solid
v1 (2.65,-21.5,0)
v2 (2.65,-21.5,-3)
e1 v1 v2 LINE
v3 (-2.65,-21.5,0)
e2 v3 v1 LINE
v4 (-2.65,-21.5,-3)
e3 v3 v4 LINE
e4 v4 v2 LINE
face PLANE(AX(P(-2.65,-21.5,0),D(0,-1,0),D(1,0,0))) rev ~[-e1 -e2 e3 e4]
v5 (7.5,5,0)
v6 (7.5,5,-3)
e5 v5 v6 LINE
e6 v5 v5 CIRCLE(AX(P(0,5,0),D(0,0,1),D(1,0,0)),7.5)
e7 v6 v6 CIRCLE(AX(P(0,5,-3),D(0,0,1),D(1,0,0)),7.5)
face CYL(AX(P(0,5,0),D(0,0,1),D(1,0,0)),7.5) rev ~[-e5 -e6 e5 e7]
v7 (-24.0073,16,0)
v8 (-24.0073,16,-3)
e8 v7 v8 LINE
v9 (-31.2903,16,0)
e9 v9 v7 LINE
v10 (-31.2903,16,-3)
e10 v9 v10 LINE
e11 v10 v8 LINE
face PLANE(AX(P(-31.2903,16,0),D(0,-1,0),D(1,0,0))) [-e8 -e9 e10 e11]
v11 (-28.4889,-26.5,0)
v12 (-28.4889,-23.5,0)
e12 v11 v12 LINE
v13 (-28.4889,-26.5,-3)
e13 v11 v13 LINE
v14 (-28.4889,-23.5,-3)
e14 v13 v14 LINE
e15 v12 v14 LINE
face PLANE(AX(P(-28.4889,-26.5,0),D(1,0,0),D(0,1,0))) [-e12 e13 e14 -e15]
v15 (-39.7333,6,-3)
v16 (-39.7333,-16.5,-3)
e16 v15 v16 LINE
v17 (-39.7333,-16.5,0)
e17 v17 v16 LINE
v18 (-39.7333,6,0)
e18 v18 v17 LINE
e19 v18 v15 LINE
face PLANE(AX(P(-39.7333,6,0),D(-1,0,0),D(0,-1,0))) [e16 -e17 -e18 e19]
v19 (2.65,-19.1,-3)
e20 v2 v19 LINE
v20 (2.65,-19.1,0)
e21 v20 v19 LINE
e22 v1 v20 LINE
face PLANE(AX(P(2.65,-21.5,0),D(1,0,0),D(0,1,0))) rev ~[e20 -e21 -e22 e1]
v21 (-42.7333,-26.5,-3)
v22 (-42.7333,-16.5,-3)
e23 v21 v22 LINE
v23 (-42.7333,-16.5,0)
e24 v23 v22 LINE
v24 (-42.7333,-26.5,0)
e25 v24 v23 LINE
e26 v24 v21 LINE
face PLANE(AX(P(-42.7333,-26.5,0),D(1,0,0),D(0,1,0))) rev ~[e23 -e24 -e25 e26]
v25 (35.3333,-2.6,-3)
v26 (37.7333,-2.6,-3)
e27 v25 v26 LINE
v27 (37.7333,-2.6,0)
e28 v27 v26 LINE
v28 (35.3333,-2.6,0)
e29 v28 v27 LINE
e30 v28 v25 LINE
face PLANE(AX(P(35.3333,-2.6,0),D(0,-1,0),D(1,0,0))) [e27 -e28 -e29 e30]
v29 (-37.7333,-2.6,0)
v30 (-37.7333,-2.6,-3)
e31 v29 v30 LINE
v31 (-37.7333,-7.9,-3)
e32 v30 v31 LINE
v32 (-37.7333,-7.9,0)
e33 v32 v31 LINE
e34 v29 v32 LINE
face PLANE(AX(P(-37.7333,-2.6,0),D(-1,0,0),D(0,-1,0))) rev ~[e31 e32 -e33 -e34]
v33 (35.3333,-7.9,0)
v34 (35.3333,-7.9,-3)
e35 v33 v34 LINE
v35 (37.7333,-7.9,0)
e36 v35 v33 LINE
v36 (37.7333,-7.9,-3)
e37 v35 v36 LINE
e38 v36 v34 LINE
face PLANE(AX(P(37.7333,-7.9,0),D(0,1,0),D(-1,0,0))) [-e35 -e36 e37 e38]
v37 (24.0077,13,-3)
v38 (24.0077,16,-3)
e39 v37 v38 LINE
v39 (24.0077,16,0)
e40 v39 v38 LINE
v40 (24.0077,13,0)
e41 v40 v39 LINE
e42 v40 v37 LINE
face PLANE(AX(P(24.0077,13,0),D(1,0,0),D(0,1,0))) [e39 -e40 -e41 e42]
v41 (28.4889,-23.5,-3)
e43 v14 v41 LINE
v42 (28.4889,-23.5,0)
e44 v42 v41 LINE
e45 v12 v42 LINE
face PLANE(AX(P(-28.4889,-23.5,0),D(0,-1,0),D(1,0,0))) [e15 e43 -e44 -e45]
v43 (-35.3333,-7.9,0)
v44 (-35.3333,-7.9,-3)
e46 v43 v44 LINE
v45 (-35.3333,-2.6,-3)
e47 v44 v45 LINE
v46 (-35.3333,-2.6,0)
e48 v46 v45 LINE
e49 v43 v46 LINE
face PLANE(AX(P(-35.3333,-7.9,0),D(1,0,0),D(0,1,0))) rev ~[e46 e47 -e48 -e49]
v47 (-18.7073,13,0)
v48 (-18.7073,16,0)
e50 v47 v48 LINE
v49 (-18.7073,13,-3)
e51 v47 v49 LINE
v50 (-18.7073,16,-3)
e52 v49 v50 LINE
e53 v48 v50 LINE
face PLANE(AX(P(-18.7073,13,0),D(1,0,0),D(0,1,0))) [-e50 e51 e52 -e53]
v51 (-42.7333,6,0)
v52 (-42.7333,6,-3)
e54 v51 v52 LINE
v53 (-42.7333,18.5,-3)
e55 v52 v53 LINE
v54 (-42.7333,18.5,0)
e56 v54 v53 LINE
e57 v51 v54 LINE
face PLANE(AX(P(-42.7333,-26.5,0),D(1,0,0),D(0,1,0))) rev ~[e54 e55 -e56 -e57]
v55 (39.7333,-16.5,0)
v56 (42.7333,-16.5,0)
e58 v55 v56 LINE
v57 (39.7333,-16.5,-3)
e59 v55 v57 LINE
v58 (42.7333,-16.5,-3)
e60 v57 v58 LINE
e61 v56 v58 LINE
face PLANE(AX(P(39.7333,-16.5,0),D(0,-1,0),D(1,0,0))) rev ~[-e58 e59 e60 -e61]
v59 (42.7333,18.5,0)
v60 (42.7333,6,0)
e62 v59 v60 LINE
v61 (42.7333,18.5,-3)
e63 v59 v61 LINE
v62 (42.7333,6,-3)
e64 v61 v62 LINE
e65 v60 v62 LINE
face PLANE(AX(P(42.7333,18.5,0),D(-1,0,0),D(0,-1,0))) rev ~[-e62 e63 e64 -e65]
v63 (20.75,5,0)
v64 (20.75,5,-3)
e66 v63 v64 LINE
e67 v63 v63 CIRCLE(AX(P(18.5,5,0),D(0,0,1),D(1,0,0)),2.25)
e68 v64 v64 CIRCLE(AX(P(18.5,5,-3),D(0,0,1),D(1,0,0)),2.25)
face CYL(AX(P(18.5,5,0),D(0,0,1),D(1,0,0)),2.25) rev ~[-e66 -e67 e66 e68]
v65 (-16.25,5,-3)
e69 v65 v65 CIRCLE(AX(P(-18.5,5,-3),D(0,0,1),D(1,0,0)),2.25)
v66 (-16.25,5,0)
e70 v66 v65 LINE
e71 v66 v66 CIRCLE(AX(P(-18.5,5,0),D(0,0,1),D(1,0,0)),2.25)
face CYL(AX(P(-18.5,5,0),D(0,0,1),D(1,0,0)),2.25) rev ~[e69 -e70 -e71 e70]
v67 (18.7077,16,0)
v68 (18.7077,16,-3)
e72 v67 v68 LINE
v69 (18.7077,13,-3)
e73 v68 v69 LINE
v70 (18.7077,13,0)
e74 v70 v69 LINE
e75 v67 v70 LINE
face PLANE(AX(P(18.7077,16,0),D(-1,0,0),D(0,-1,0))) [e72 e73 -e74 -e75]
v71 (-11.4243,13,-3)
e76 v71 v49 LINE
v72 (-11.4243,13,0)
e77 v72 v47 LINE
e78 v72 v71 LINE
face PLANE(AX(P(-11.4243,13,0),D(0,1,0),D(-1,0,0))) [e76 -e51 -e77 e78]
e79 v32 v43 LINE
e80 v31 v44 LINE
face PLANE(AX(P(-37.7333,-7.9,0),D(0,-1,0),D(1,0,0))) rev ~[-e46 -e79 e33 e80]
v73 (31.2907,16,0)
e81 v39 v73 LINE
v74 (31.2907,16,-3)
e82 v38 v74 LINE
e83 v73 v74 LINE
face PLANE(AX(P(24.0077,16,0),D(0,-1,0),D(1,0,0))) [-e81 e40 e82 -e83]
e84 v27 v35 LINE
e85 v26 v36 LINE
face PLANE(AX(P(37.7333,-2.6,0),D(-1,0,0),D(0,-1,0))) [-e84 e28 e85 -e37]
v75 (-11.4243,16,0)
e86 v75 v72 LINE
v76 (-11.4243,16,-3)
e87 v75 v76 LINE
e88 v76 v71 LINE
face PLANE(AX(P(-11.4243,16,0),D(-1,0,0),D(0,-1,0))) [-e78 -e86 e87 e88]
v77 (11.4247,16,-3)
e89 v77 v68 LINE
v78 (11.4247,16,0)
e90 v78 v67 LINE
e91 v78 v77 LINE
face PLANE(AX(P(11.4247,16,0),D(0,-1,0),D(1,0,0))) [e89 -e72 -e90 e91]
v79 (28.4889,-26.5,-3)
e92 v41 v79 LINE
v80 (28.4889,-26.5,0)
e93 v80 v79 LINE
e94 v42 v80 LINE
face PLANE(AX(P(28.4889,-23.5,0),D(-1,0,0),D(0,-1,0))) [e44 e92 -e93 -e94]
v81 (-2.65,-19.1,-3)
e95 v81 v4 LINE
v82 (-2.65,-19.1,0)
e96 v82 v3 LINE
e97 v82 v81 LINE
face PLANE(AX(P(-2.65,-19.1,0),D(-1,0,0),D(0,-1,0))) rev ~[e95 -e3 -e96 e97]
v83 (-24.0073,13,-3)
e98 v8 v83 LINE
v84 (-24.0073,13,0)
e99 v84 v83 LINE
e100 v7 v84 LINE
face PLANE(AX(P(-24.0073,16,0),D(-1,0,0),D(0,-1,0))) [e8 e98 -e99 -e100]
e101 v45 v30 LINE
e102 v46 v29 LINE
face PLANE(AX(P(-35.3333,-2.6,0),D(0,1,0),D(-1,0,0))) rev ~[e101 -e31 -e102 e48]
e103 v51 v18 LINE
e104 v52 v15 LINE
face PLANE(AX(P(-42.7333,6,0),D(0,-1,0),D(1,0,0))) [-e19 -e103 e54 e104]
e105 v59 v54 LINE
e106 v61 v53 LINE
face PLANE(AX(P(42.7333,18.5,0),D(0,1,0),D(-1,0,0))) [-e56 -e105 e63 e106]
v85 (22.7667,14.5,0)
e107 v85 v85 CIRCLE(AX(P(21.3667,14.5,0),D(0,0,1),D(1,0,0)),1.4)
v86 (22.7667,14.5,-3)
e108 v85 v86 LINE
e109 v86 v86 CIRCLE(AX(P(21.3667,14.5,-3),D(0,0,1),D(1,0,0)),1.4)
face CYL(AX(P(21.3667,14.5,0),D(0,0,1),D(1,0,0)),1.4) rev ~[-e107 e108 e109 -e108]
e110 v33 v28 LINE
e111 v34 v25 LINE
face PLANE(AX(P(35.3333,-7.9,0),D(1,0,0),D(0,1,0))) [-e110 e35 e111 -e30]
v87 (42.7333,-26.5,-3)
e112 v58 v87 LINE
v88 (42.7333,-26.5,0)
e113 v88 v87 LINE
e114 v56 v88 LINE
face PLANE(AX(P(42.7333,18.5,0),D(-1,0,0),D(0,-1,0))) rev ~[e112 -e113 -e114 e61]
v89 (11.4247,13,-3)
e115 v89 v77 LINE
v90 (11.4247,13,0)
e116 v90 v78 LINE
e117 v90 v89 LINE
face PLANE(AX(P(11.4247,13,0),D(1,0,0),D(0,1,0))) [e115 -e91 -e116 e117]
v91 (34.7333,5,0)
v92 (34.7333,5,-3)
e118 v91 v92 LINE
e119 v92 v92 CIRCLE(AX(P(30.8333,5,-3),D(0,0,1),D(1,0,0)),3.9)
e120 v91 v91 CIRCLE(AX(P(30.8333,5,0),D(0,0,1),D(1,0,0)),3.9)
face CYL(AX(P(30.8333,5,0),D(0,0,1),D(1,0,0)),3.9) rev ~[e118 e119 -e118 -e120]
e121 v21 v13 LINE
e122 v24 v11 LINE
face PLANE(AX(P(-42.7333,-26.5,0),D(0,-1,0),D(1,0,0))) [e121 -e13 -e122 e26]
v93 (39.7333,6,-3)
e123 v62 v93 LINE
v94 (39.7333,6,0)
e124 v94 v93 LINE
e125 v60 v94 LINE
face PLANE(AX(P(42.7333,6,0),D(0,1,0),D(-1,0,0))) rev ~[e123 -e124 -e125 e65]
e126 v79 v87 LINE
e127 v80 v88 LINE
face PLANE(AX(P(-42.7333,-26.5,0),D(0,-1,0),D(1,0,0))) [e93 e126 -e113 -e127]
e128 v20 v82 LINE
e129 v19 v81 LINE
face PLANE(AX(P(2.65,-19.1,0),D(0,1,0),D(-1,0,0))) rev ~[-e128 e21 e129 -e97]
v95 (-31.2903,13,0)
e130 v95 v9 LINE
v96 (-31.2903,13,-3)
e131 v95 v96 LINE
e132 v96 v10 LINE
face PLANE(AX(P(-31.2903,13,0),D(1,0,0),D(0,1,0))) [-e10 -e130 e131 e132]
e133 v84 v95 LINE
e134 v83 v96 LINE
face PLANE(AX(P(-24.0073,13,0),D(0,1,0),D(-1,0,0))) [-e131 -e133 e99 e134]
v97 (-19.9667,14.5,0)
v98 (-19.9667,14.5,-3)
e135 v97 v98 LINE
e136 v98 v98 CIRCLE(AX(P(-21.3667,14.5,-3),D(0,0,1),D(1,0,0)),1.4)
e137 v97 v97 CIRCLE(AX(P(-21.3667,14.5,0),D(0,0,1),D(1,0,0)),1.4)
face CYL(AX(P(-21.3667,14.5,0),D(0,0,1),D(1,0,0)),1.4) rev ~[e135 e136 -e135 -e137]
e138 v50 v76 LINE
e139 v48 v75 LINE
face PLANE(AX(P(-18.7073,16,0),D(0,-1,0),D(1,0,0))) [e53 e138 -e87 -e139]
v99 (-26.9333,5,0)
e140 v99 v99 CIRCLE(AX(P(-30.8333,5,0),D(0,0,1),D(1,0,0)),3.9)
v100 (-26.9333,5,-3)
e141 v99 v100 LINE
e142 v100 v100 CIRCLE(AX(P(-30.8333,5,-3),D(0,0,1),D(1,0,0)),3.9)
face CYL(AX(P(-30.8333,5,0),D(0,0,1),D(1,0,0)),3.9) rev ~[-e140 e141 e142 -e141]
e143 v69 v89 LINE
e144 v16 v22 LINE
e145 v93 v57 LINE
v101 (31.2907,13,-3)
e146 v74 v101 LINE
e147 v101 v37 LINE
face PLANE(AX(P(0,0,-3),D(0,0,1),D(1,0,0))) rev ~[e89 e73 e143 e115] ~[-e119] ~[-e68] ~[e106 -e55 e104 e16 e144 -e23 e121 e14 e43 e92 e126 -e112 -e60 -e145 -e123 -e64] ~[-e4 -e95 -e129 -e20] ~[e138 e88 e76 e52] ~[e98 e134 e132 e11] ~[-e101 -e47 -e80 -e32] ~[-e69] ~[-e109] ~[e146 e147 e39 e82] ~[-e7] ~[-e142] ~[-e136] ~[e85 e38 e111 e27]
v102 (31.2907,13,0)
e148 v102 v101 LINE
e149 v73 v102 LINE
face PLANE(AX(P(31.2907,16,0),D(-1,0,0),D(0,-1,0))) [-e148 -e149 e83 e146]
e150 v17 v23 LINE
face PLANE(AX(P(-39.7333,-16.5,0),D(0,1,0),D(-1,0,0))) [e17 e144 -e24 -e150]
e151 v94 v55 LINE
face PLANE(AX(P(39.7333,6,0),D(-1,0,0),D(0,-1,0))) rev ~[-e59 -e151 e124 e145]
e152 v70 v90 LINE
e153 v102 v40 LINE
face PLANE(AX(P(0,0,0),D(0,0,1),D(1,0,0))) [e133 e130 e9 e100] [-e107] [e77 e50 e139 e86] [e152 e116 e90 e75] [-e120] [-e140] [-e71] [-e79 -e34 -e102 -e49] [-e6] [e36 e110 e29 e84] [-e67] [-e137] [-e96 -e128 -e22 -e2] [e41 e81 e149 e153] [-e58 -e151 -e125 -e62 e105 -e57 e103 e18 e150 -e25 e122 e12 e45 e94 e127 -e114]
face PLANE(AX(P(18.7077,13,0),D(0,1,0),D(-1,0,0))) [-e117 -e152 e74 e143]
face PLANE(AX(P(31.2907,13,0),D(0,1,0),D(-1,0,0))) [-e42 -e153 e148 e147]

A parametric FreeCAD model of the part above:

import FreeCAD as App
import Part
import Sketcher

doc = App.newDocument("Part")
body = doc.addObject("PartDesign::Body", "Body")

# Sketch on XY plane
sketch1 = doc.addObject("Sketcher::SketchObject", "Sketch")
body.addObject(sketch1)
sketch1.AttachmentSupport = (doc.XY_Plane, [""])
sketch1.MapMode = "FlatFace"
sketch1.addGeometry([
    Part.LineSegment(App.Vector(42.7, -26.5, 0), App.Vector(42.7, 18.5, 0)),  # 0
    Part.LineSegment(App.Vector(42.7, 18.5, 0), App.Vector(-42.7, 18.5, 0)),  # 1
    Part.LineSegment(App.Vector(-42.7, 18.5, 0), App.Vector(-42.7, -26.5, 0)),  # 2
    Part.LineSegment(App.Vector(-42.7, -26.5, 0), App.Vector(42.7, -26.5, 0)),  # 3
    Part.Circle(App.Vector(-30.8, 5, 0), App.Vector(0, 0, 1), 3.9),  # 4
    Part.Circle(App.Vector(-18.5, 5, 0), App.Vector(0, 0, 1), 2.2),  # 5
    Part.Circle(App.Vector(0, 5, 0), App.Vector(0, 0, 1), 7.5),  # 6
    Part.Circle(App.Vector(18.5, 5, 0), App.Vector(0, 0, 1), 2.2),  # 7
    Part.Circle(App.Vector(30.8, 5, 0), App.Vector(0, 0, 1), 3.9),  # 8
], False)
sketch1.addConstraint([
    Sketcher.Constraint("Coincident", 0, 2, 1, 1),
    Sketcher.Constraint("Coincident", 1, 2, 2, 1),
    Sketcher.Constraint("Coincident", 2, 2, 3, 1),
    Sketcher.Constraint("Coincident", 3, 2, 0, 1),
    Sketcher.Constraint("Vertical", 0),
    Sketcher.Constraint("Horizontal", 1),
    Sketcher.Constraint("Vertical", 2),
    Sketcher.Constraint("Horizontal", 3),
    Sketcher.Constraint("Equal", 5, 7),
    Sketcher.Constraint("Equal", 4, 8),
    Sketcher.Constraint("Symmetric", 5, 3, 7, 3, -2),
    Sketcher.Constraint("Symmetric", 4, 3, 8, 3, -2),
    Sketcher.Constraint("PointOnObject", 6, 3, -2),
    Sketcher.Constraint("Horizontal", 4, 3, 5, 3),
    Sketcher.Constraint("Horizontal", 5, 3, 6, 3),
    Sketcher.Constraint("Diameter", 6, 15.0),
    Sketcher.Constraint("Diameter", 4, 7.8),
    Sketcher.Constraint("Diameter", 5, 4.5),
    Sketcher.Constraint("DistanceY", 0, 1, 0, 2, 45.0),
    Sketcher.Constraint("DistanceY", 2, 2, 4, 3, 31.5),
    Sketcher.Constraint("DistanceX", 1, 2, 1, 1, 85.4666),
    Sketcher.Constraint("DistanceY", -1, 1, 4, 3, 5.0),
    Sketcher.Constraint("DistanceX", 5, 3, 7, 3, 37.0),
    Sketcher.Constraint("DistanceX", 4, 3, -1, 1, 30.8333),
    Sketcher.Constraint("DistanceX", 8, 3, 0, 2, 11.9),
])
pad1 = doc.addObject("PartDesign::Pad", "Pad")
body.addObject(pad1)
pad1.Profile = sketch1
pad1.Length = 3
pad1.Reversed = True

# Sketch on XY plane
sketch2 = doc.addObject("Sketcher::SketchObject", "Sketch001")
body.addObject(sketch2)
sketch2.AttachmentSupport = (doc.XY_Plane, [""])
sketch2.MapMode = "FlatFace"
sketch2.addGeometry([
    Part.LineSegment(App.Vector(-28.5, -23.5, 0), App.Vector(-28.5, -26.5, 0)),  # 0
    Part.LineSegment(App.Vector(-28.5, -26.5, 0), App.Vector(28.5, -26.5, 0)),  # 1
    Part.LineSegment(App.Vector(28.5, -26.5, 0), App.Vector(28.5, -23.5, 0)),  # 2
    Part.LineSegment(App.Vector(28.5, -23.5, 0), App.Vector(-28.5, -23.5, 0)),  # 3
    Part.LineSegment(App.Vector(-42.7, 6, 0), App.Vector(-42.7, -16.5, 0)),  # 4
    Part.LineSegment(App.Vector(-42.7, -16.5, 0), App.Vector(-39.7, -16.5, 0)),  # 5
    Part.LineSegment(App.Vector(-39.7, -16.5, 0), App.Vector(-39.7, 6, 0)),  # 6
    Part.LineSegment(App.Vector(-39.7, 6, 0), App.Vector(-42.7, 6, 0)),  # 7
    Part.LineSegment(App.Vector(42.7, -16.5, 0), App.Vector(42.7, 6, 0)),  # 8
    Part.LineSegment(App.Vector(42.7, 6, 0), App.Vector(39.7, 6, 0)),  # 9
    Part.LineSegment(App.Vector(39.7, 6, 0), App.Vector(39.7, -16.5, 0)),  # 10
    Part.LineSegment(App.Vector(39.7, -16.5, 0), App.Vector(42.7, -16.5, 0)),  # 11
    Part.Circle(App.Vector(0, 5, 0), App.Vector(0, 0, 1), 7.5),  # 12
    Part.Circle(App.Vector(30.8, 5, 0), App.Vector(0, 0, 1), 3.9),  # 13
    Part.Circle(App.Vector(21.4, 14.5, 0), App.Vector(0, 0, 1), 1.4),  # 14
    Part.Circle(App.Vector(-21.4, 14.5, 0), App.Vector(0, 0, 1), 1.4),  # 15
    Part.LineSegment(App.Vector(37.7, -2.6, 0), App.Vector(35.3, -2.6, 0)),  # 16
    Part.LineSegment(App.Vector(35.3, -2.6, 0), App.Vector(35.3, -7.9, 0)),  # 17
    Part.LineSegment(App.Vector(35.3, -7.9, 0), App.Vector(37.7, -7.9, 0)),  # 18
    Part.LineSegment(App.Vector(37.7, -7.9, 0), App.Vector(37.7, -2.6, 0)),  # 19
    Part.LineSegment(App.Vector(-35.3, -7.9, 0), App.Vector(-35.3, -2.6, 0)),  # 20
    Part.LineSegment(App.Vector(-35.3, -2.6, 0), App.Vector(-37.7, -2.6, 0)),  # 21
    Part.LineSegment(App.Vector(-37.7, -2.6, 0), App.Vector(-37.7, -7.9, 0)),  # 22
    Part.LineSegment(App.Vector(-37.7, -7.9, 0), App.Vector(-35.3, -7.9, 0)),  # 23
    Part.LineSegment(App.Vector(2.6, -21.5, 0), App.Vector(2.6, -19.1, 0)),  # 24
    Part.LineSegment(App.Vector(2.6, -19.1, 0), App.Vector(-2.6, -19.1, 0)),  # 25
    Part.LineSegment(App.Vector(-2.6, -19.1, 0), App.Vector(-2.6, -21.5, 0)),  # 26
    Part.LineSegment(App.Vector(-2.6, -21.5, 0), App.Vector(2.6, -21.5, 0)),  # 27
    Part.LineSegment(App.Vector(11.4, 16, 0), App.Vector(11.4, 13, 0)),  # 28
    Part.LineSegment(App.Vector(11.4, 13, 0), App.Vector(18.7, 13, 0)),  # 29
    Part.LineSegment(App.Vector(18.7, 13, 0), App.Vector(18.7, 16, 0)),  # 30
    Part.LineSegment(App.Vector(18.7, 16, 0), App.Vector(11.4, 16, 0)),  # 31
    Part.LineSegment(App.Vector(31.3, 13, 0), App.Vector(31.3, 16, 0)),  # 32
    Part.LineSegment(App.Vector(31.3, 16, 0), App.Vector(24, 16, 0)),  # 33
    Part.LineSegment(App.Vector(24, 16, 0), App.Vector(24, 13, 0)),  # 34
    Part.LineSegment(App.Vector(24, 13, 0), App.Vector(31.3, 13, 0)),  # 35
    Part.LineSegment(App.Vector(-18.7, 16, 0), App.Vector(-18.7, 13, 0)),  # 36
    Part.LineSegment(App.Vector(-18.7, 13, 0), App.Vector(-11.4, 13, 0)),  # 37
    Part.LineSegment(App.Vector(-11.4, 13, 0), App.Vector(-11.4, 16, 0)),  # 38
    Part.LineSegment(App.Vector(-11.4, 16, 0), App.Vector(-18.7, 16, 0)),  # 39
    Part.LineSegment(App.Vector(-24, 13, 0), App.Vector(-24, 16, 0)),  # 40
    Part.LineSegment(App.Vector(-24, 16, 0), App.Vector(-31.3, 16, 0)),  # 41
    Part.LineSegment(App.Vector(-31.3, 16, 0), App.Vector(-31.3, 13, 0)),  # 42
    Part.LineSegment(App.Vector(-31.3, 13, 0), App.Vector(-24, 13, 0)),  # 43
], False)
sketch2.addConstraint([
    Sketcher.Constraint("Coincident", 0, 2, 1, 1),
    Sketcher.Constraint("Coincident", 1, 2, 2, 1),
    Sketcher.Constraint("Coincident", 2, 2, 3, 1),
    Sketcher.Constraint("Coincident", 3, 2, 0, 1),
    Sketcher.Constraint("Coincident", 4, 2, 5, 1),
    Sketcher.Constraint("Coincident", 5, 2, 6, 1),
    Sketcher.Constraint("Coincident", 6, 2, 7, 1),
    Sketcher.Constraint("Coincident", 7, 2, 4, 1),
    Sketcher.Constraint("Coincident", 8, 2, 9, 1),
    Sketcher.Constraint("Coincident", 9, 2, 10, 1),
    Sketcher.Constraint("Coincident", 10, 2, 11, 1),
    Sketcher.Constraint("Coincident", 11, 2, 8, 1),
    Sketcher.Constraint("Coincident", 16, 2, 17, 1),
    Sketcher.Constraint("Coincident", 17, 2, 18, 1),
    Sketcher.Constraint("Coincident", 18, 2, 19, 1),
    Sketcher.Constraint("Coincident", 19, 2, 16, 1),
    Sketcher.Constraint("Coincident", 20, 2, 21, 1),
    Sketcher.Constraint("Coincident", 21, 2, 22, 1),
    Sketcher.Constraint("Coincident", 22, 2, 23, 1),
    Sketcher.Constraint("Coincident", 23, 2, 20, 1),
    Sketcher.Constraint("Coincident", 24, 2, 25, 1),
    Sketcher.Constraint("Coincident", 25, 2, 26, 1),
    Sketcher.Constraint("Coincident", 26, 2, 27, 1),
    Sketcher.Constraint("Coincident", 27, 2, 24, 1),
    Sketcher.Constraint("Coincident", 28, 2, 29, 1),
    Sketcher.Constraint("Coincident", 29, 2, 30, 1),
    Sketcher.Constraint("Coincident", 30, 2, 31, 1),
    Sketcher.Constraint("Coincident", 31, 2, 28, 1),
    Sketcher.Constraint("Coincident", 32, 2, 33, 1),
    Sketcher.Constraint("Coincident", 33, 2, 34, 1),
    Sketcher.Constraint("Coincident", 34, 2, 35, 1),
    Sketcher.Constraint("Coincident", 35, 2, 32, 1),
    Sketcher.Constraint("Coincident", 36, 2, 37, 1),
    Sketcher.Constraint("Coincident", 37, 2, 38, 1),
    Sketcher.Constraint("Coincident", 38, 2, 39, 1),
    Sketcher.Constraint("Coincident", 39, 2, 36, 1),
    Sketcher.Constraint("Coincident", 40, 2, 41, 1),
    Sketcher.Constraint("Coincident", 41, 2, 42, 1),
    Sketcher.Constraint("Coincident", 42, 2, 43, 1),
    Sketcher.Constraint("Coincident", 43, 2, 40, 1),
    Sketcher.Constraint("Vertical", 0),
    Sketcher.Constraint("Horizontal", 1),
    Sketcher.Constraint("Vertical", 2),
    Sketcher.Constraint("Horizontal", 3),
    Sketcher.Constraint("Vertical", 4),
    Sketcher.Constraint("Horizontal", 5),
    Sketcher.Constraint("Vertical", 6),
    Sketcher.Constraint("Horizontal", 7),
    Sketcher.Constraint("Vertical", 8),
    Sketcher.Constraint("Horizontal", 9),
    Sketcher.Constraint("Vertical", 10),
    Sketcher.Constraint("Horizontal", 11),
    Sketcher.Constraint("Horizontal", 16),
    Sketcher.Constraint("Vertical", 17),
    Sketcher.Constraint("Horizontal", 18),
    Sketcher.Constraint("Vertical", 19),
    Sketcher.Constraint("Vertical", 20),
    Sketcher.Constraint("Horizontal", 21),
    Sketcher.Constraint("Vertical", 22),
    Sketcher.Constraint("Horizontal", 23),
    Sketcher.Constraint("Vertical", 24),
    Sketcher.Constraint("Horizontal", 25),
    Sketcher.Constraint("Vertical", 26),
    Sketcher.Constraint("Horizontal", 27),
    Sketcher.Constraint("Vertical", 28),
    Sketcher.Constraint("Horizontal", 29),
    Sketcher.Constraint("Vertical", 30),
    Sketcher.Constraint("Horizontal", 31),
    Sketcher.Constraint("Vertical", 32),
    Sketcher.Constraint("Horizontal", 33),
    Sketcher.Constraint("Vertical", 34),
    Sketcher.Constraint("Horizontal", 35),
    Sketcher.Constraint("Vertical", 36),
    Sketcher.Constraint("Horizontal", 37),
    Sketcher.Constraint("Vertical", 38),
    Sketcher.Constraint("Horizontal", 39),
    Sketcher.Constraint("Vertical", 40),
    Sketcher.Constraint("Horizontal", 41),
    Sketcher.Constraint("Vertical", 42),
    Sketcher.Constraint("Horizontal", 43),
    Sketcher.Constraint("Equal", 14, 15),
    Sketcher.Constraint("Symmetric", 14, 3, 15, 3, -2),
    Sketcher.Constraint("Symmetric", 7, 2, 8, 2, -2),
    Sketcher.Constraint("Symmetric", 5, 2, 10, 2, -2),
    Sketcher.Constraint("Symmetric", 16, 2, 20, 2, -2),
    Sketcher.Constraint("Symmetric", 18, 2, 22, 2, -2),
    Sketcher.Constraint("Symmetric", 29, 2, 36, 2, -2),
    Sketcher.Constraint("Symmetric", 31, 2, 38, 2, -2),
    Sketcher.Constraint("Symmetric", 33, 2, 40, 2, -2),
    Sketcher.Constraint("PointOnObject", 12, 3, -2),
    Sketcher.Constraint("Horizontal", 12, 3, 13, 3),
    Sketcher.Constraint("Horizontal", 31, 2, 32, 2),
    Sketcher.Constraint("Horizontal", 29, 2, 34, 2),
    Sketcher.Constraint("Horizontal", 37, 2, 42, 2),
    Sketcher.Constraint("Equal", 31, 33),
    Sketcher.Constraint("Equal", 39, 41),
    Sketcher.Constraint("Equal", 11, 0),
    Sketcher.Constraint("Equal", 27, 17),
    Sketcher.Constraint("Equal", 23, 24),
    Sketcher.Constraint("Equal", 2, 28),
    Sketcher.Constraint("Diameter", 14, 2.8),
    Sketcher.Constraint("DistanceX", 5, 1, 5, 2, 3.0),
    Sketcher.Constraint("Diameter", 12, 15.0),
    Sketcher.Constraint("DistanceX", 16, 2, 16, 1, 2.4),
    Sketcher.Constraint("DistanceX", 25, 2, 25, 1, 5.3),
    Sketcher.Constraint("DistanceY", 4, 2, 4, 1, 22.5),
    Sketcher.Constraint("DistanceY", -1, 1, 12, 3, 5.0),
    Sketcher.Constraint("DistanceX", 18, 2, 11, 2, 5.0),
    Sketcher.Constraint("DistanceY", 0, 2, 26, 2, 5.0),
    Sketcher.Constraint("DistanceY", 13, 3, 30, 2, 11.0),
    Sketcher.Constraint("Diameter", 13, 7.8),
    Sketcher.Constraint("DistanceX", 30, 2, 33, 2, 5.3),
    Sketcher.Constraint("DistanceX", 1, 1, 1, 2, 56.9778),
    Sketcher.Constraint("DistanceY", -1, 1, 6, 2, 6.0),
    Sketcher.Constraint("DistanceY", 0, 2, 15, 3, 41.0),
    Sketcher.Constraint("DistanceY", 3, 2, 4, 2, 7.0),
    Sketcher.Constraint("DistanceY", 16, 2, -1, 1, 2.6),
    Sketcher.Constraint("DistanceX", 15, 3, 13, 3, 52.2),
    Sketcher.Constraint("DistanceX", 4, 2, 14, 3, 64.1),
    Sketcher.Constraint("DistanceX", 29, 1, 29, 2, 7.283),
    Sketcher.Constraint("DistanceX", -1, 1, 24, 2, 2.65),
    Sketcher.Constraint("DistanceX", 0, 2, -1, 1, 28.489),
    Sketcher.Constraint("DistanceX", 28, 2, 14, 3, 9.942),
    Sketcher.Constraint("DistanceX", 6, 2, 36, 2, 21.026),
])
pocket1 = doc.addObject("PartDesign::Pocket", "Pocket")
body.addObject(pocket1)
pocket1.Profile = sketch2
pocket1.Type = "ThroughAll"

doc.recompute()
